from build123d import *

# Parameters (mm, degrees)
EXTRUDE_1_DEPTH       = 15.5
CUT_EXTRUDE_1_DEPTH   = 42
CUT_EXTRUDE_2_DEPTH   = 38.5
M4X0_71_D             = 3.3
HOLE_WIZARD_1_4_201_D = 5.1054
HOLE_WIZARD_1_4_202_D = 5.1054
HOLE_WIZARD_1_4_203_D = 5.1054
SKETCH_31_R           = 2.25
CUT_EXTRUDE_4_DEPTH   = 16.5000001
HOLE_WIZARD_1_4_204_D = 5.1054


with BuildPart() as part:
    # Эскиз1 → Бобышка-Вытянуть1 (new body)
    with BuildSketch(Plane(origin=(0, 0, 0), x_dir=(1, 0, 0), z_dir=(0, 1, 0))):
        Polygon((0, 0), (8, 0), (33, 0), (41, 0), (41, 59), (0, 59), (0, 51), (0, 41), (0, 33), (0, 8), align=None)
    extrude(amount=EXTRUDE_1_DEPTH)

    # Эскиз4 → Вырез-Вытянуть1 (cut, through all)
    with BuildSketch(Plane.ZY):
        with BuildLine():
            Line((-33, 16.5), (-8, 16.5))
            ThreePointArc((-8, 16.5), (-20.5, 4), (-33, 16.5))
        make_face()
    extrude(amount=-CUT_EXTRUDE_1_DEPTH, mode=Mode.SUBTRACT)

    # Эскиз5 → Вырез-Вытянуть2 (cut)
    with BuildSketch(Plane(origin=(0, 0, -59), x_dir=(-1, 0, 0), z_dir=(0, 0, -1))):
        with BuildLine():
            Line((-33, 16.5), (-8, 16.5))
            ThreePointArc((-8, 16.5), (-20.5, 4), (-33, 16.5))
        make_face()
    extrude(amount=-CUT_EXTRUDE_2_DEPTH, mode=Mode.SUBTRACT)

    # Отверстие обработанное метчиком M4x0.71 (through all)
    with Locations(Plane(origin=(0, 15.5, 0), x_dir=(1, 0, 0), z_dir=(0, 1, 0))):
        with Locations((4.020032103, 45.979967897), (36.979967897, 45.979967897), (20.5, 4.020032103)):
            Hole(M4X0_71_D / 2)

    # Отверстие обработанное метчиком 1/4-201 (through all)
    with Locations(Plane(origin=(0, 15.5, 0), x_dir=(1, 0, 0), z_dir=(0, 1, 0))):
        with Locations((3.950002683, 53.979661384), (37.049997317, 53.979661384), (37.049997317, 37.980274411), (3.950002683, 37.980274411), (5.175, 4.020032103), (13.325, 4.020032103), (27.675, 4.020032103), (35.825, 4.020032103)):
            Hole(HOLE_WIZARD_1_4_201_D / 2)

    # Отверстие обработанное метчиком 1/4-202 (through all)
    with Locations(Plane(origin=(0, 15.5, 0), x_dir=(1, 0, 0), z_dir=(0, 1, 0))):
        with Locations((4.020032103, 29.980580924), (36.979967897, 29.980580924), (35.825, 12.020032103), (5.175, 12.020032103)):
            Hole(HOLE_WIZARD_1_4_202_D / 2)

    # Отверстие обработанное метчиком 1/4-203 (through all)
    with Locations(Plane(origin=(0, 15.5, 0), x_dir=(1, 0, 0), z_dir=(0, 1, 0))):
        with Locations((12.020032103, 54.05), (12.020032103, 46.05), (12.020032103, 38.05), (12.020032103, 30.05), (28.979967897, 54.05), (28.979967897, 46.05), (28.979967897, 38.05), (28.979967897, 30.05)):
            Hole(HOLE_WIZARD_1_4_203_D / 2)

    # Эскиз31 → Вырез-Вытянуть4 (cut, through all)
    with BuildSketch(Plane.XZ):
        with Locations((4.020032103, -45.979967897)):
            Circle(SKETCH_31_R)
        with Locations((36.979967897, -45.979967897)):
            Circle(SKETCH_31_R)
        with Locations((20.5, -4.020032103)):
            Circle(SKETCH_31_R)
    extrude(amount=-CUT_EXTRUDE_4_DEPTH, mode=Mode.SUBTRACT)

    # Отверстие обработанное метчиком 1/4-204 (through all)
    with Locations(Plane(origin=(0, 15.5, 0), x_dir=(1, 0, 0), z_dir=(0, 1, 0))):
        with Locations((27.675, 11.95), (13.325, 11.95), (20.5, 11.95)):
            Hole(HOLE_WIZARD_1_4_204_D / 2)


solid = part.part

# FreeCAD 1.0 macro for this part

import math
import FreeCAD as App
import Part
import Sketcher

V = App.Vector

doc = App.newDocument("Part")
body = doc.addObject("PartDesign::Body", "Body")

# Sketch on XZ plane
sketch1 = body.newObject("Sketcher::SketchObject", "Sketch")
sketch1.AttachmentSupport = (doc.getObject("XZ_Plane"), [""])
sketch1.MapMode = "FlatFace"
sketch1.addGeometry([
    Part.LineSegment(V(0, 0, 0), V(41, 0, 0)),
    Part.LineSegment(V(41, 0, 0), V(41, -59, 0)),
    Part.LineSegment(V(41, -59, 0), V(0, -59, 0)),
    Part.LineSegment(V(0, -59, 0), V(0, 0, 0)),
], False)
sketch1.addConstraint([
    Sketcher.Constraint("Coincident", 0, 2, 1, 1),
    Sketcher.Constraint("Coincident", 1, 2, 2, 1),
    Sketcher.Constraint("Coincident", 2, 2, 3, 1),
    Sketcher.Constraint("Coincident", 3, 2, 0, 1),
    Sketcher.Constraint("Horizontal", 0),
    Sketcher.Constraint("Vertical", 1),
    Sketcher.Constraint("Horizontal", 2),
    Sketcher.Constraint("Vertical", 3),
    Sketcher.Constraint("Coincident", 3, 2, -1, 1),
    Sketcher.Constraint("DistanceX", 0, 1, 0, 2, 41.0),
    Sketcher.Constraint("DistanceY", 1, 2, 1, 1, 59.0),
])
pad1 = body.newObject("PartDesign::Pad", "Pad")
pad1.Profile = sketch1
pad1.Length = 15.5
pad1.Reversed = True

# Sketch on YZ plane
sketch2 = body.newObject("Sketcher::SketchObject", "Sketch001")
sketch2.AttachmentSupport = (doc.getObject("YZ_Plane"), [""])
sketch2.MapMode = "FlatFace"
sketch2.addGeometry([
    Part.LineSegment(V(16.5, -8, 0), V(16.5, -33, 0)),
    Part.ArcOfCircle(Part.Circle(V(16.5, -20.5, 0), V(0, 0, 1), 12.5), math.radians(90), math.radians(270)),
], False)
sketch2.addConstraint([
    Sketcher.Constraint("Coincident", 0, 1, 1, 1),
    Sketcher.Constraint("Coincident", 1, 2, 0, 2),
    Sketcher.Constraint("Vertical", 0),
    Sketcher.Constraint("Vertical", 1, 3, 0, 1),
    Sketcher.Constraint("Radius", 1, 12.5),
    Sketcher.Constraint("DistanceY", 0, 1, -1, 1, 8.0),
    Sketcher.Constraint("DistanceX", -1, 1, 1, 3, 16.5),
])
pocket1 = body.newObject("PartDesign::Pocket", "Pocket")
pocket1.Profile = sketch2
pocket1.Type = "ThroughAll"
pocket1.Reversed = True

# Sketch on XY plane
sketch3 = body.newObject("Sketcher::SketchObject", "Sketch002")
sketch3.AttachmentSupport = (doc.getObject("XY_Plane"), [""])
sketch3.MapMode = "FlatFace"
sketch3.AttachmentOffset = App.Placement(V(0, 0, -59), App.Rotation())
sketch3.addGeometry([
    Part.LineSegment(V(8, 16.5, 0), V(33, 16.5, 0)),
    Part.ArcOfCircle(Part.Circle(V(20.5, 16.5, 0), V(0, 0, 1), 12.5), math.radians(180), math.radians(360)),
], False)
sketch3.addConstraint([
    Sketcher.Constraint("Coincident", 0, 1, 1, 1),
    Sketcher.Constraint("Coincident", 1, 2, 0, 2),
    Sketcher.Constraint("Horizontal", 0),
    Sketcher.Constraint("Horizontal", 1, 3, 0, 1),
    Sketcher.Constraint("Radius", 1, 12.5),
    Sketcher.Constraint("DistanceX", -1, 1, 0, 1, 8.0),
    Sketcher.Constraint("DistanceY", -1, 1, 1, 3, 16.5),
])
pocket2 = body.newObject("PartDesign::Pocket", "Pocket001")
pocket2.Profile = sketch3
pocket2.Length = 38.5
pocket2.Reversed = True

# Sketch on XZ plane
sketch4 = body.newObject("Sketcher::SketchObject", "Sketch003")
sketch4.AttachmentSupport = (doc.getObject("XZ_Plane"), [""])
sketch4.MapMode = "FlatFace"
sketch4.AttachmentOffset = App.Placement(V(0, 0, -15.5), App.Rotation())
sketch4.addGeometry([
    Part.Circle(V(4.020032, -45.979968, 0), V(0, 0, 1), 1.65),
    Part.Circle(V(36.979968, -45.979968, 0), V(0, 0, 1), 1.65),
    Part.Circle(V(20.5, -4.020032, 0), V(0, 0, 1), 1.65),
], False)
sketch4.addConstraint([
    Sketcher.Constraint("Equal", 0, 1),
    Sketcher.Constraint("Equal", 1, 2),
    Sketcher.Constraint("Horizontal", 0, 3, 1, 3),
    Sketcher.Constraint("Diameter", 0, 3.3),
    Sketcher.Constraint("DistanceX", -1, 1, 2, 3, 20.5),
    Sketcher.Constraint("DistanceX", -1, 1, 0, 3, 4.020032),
    Sketcher.Constraint("DistanceY", 0, 3, -1, 1, 45.979968),
    Sketcher.Constraint("DistanceX", -1, 1, 1, 3, 36.979968),
    Sketcher.Constraint("DistanceY", 2, 3, -1, 1, 4.020032),
])
doc.recompute()
hole = body.newObject("PartDesign::Hole", "Hole")
hole.Profile = sketch4
hole.ThreadType = "None"
hole.Diameter = 3.3
hole.DepthType = "ThroughAll"
hole.Reversed = True

# Sketch on XZ plane
sketch5 = body.newObject("Sketcher::SketchObject", "Sketch004")
sketch5.AttachmentSupport = (doc.getObject("XZ_Plane"), [""])
sketch5.MapMode = "FlatFace"
sketch5.AttachmentOffset = App.Placement(V(0, 0, -15.5), App.Rotation())
sketch5.addGeometry([
    Part.Circle(V(3.950003, -53.979661, 0), V(0, 0, 1), 2.5527),  # 0
    Part.Circle(V(37.049997, -53.979661, 0), V(0, 0, 1), 2.5527),  # 1
    Part.Circle(V(37.049997, -37.980274, 0), V(0, 0, 1), 2.5527),  # 2
    Part.Circle(V(3.950003, -37.980274, 0), V(0, 0, 1), 2.5527),  # 3
    Part.Circle(V(5.175, -4.020032, 0), V(0, 0, 1), 2.5527),  # 4
    Part.Circle(V(13.325, -4.020032, 0), V(0, 0, 1), 2.5527),  # 5
    Part.Circle(V(27.675, -4.020032, 0), V(0, 0, 1), 2.5527),  # 6
    Part.Circle(V(35.825, -4.020032, 0), V(0, 0, 1), 2.5527),  # 7
], False)
sketch5.addConstraint([
    Sketcher.Constraint("Equal", 0, 1),
    Sketcher.Constraint("Equal", 1, 2),
    Sketcher.Constraint("Equal", 2, 3),
    Sketcher.Constraint("Equal", 3, 4),
    Sketcher.Constraint("Equal", 4, 5),
    Sketcher.Constraint("Equal", 5, 6),
    Sketcher.Constraint("Equal", 6, 7),
    Sketcher.Constraint("Horizontal", 0, 3, 1, 3),
    Sketcher.Constraint("Horizontal", 2, 3, 3, 3),
    Sketcher.Constraint("Horizontal", 4, 3, 5, 3),
    Sketcher.Constraint("Horizontal", 5, 3, 6, 3),
    Sketcher.Constraint("Horizontal", 6, 3, 7, 3),
    Sketcher.Constraint("Vertical", 1, 3, 2, 3),
    Sketcher.Constraint("Vertical", 0, 3, 3, 3),
    Sketcher.Constraint("Diameter", 0, 5.1054),
    Sketcher.Constraint("DistanceX", 4, 3, 6, 3, 22.5),
    Sketcher.Constraint("DistanceX", 5, 3, 7, 3, 22.5),
    Sketcher.Constraint("DistanceX", 4, 3, 5, 3, 8.15),
    Sketcher.Constraint("DistanceX", -1, 1, 4, 3, 5.175),
    Sketcher.Constraint("DistanceY", 0, 3, -1, 1, 53.979661),
    Sketcher.Constraint("DistanceY", 0, 3, 4, 3, 49.959629),
    Sketcher.Constraint("DistanceX", -1, 1, 0, 3, 3.950003),
    Sketcher.Constraint("DistanceX", -1, 1, 1, 3, 37.049997),
    Sketcher.Constraint("DistanceY", 2, 3, -1, 1, 37.980274),
])
doc.recompute()
hole2 = body.newObject("PartDesign::Hole", "Hole001")
hole2.Profile = sketch5
hole2.ThreadType = "None"
hole2.Diameter = 5.1054
hole2.DepthType = "ThroughAll"
hole2.Reversed = True

# Sketch on XZ plane
sketch6 = body.newObject("Sketcher::SketchObject", "Sketch005")
sketch6.AttachmentSupport = (doc.getObject("XZ_Plane"), [""])
sketch6.MapMode = "FlatFace"
sketch6.AttachmentOffset = App.Placement(V(0, 0, -15.5), App.Rotation())
sketch6.addGeometry([
    Part.Circle(V(4.020032, -29.980581, 0), V(0, 0, 1), 2.5527),
    Part.Circle(V(36.979968, -29.980581, 0), V(0, 0, 1), 2.5527),
    Part.Circle(V(35.825, -12.020032, 0), V(0, 0, 1), 2.5527),
    Part.Circle(V(5.175, -12.020032, 0), V(0, 0, 1), 2.5527),
], False)
sketch6.addConstraint([
    Sketcher.Constraint("Equal", 0, 1),
    Sketcher.Constraint("Equal", 1, 2),
    Sketcher.Constraint("Equal", 2, 3),
    Sketcher.Constraint("Horizontal", 0, 3, 1, 3),
    Sketcher.Constraint("Horizontal", 2, 3, 3, 3),
    Sketcher.Constraint("Diameter", 0, 5.1054),
    Sketcher.Constraint("DistanceX", 3, 3, 2, 3, 30.65),
    Sketcher.Constraint("DistanceX", -1, 1, 2, 3, 35.825),
    Sketcher.Constraint("DistanceY", 0, 3, -1, 1, 29.980581),
    Sketcher.Constraint("DistanceY", 1, 3, 2, 3, 17.960549),
    Sketcher.Constraint("DistanceX", -1, 1, 0, 3, 4.020032),
    Sketcher.Constraint("DistanceX", -1, 1, 1, 3, 36.979968),
])
doc.recompute()
hole3 = body.newObject("PartDesign::Hole", "Hole002")
hole3.Profile = sketch6
hole3.ThreadType = "None"
hole3.Diameter = 5.1054
hole3.DepthType = "ThroughAll"
hole3.Reversed = True

# Sketch on XZ plane
sketch7 = body.newObject("Sketcher::SketchObject", "Sketch006")
sketch7.AttachmentSupport = (doc.getObject("XZ_Plane"), [""])
sketch7.MapMode = "FlatFace"
sketch7.AttachmentOffset = App.Placement(V(0, 0, -15.5), App.Rotation())
sketch7.addGeometry([
    Part.Circle(V(12.020032, -54.05, 0), V(0, 0, 1), 2.5527),  # 0
    Part.Circle(V(12.020032, -46.05, 0), V(0, 0, 1), 2.5527),  # 1
    Part.Circle(V(12.020032, -38.05, 0), V(0, 0, 1), 2.5527),  # 2
    Part.Circle(V(12.020032, -30.05, 0), V(0, 0, 1), 2.5527),  # 3
    Part.Circle(V(28.979968, -54.05, 0), V(0, 0, 1), 2.5527),  # 4
    Part.Circle(V(28.979968, -46.05, 0), V(0, 0, 1), 2.5527),  # 5
    Part.Circle(V(28.979968, -38.05, 0), V(0, 0, 1), 2.5527),  # 6
    Part.Circle(V(28.979968, -30.05, 0), V(0, 0, 1), 2.5527),  # 7
], False)
sketch7.addConstraint([
    Sketcher.Constraint("Equal", 0, 1),
    Sketcher.Constraint("Equal", 1, 2),
    Sketcher.Constraint("Equal", 2, 3),
    Sketcher.Constraint("Equal", 3, 4),
    Sketcher.Constraint("Equal", 4, 5),
    Sketcher.Constraint("Equal", 5, 6),
    Sketcher.Constraint("Equal", 6, 7),
    Sketcher.Constraint("Horizontal", 0, 3, 4, 3),
    Sketcher.Constraint("Horizontal", 1, 3, 5, 3),
    Sketcher.Constraint("Horizontal", 2, 3, 6, 3),
    Sketcher.Constraint("Horizontal", 3, 3, 7, 3),
    Sketcher.Constraint("Vertical", 0, 3, 1, 3),
    Sketcher.Constraint("Vertical", 1, 3, 2, 3),
    Sketcher.Constraint("Vertical", 2, 3, 3, 3),
    Sketcher.Constraint("Vertical", 4, 3, 5, 3),
    Sketcher.Constraint("Vertical", 5, 3, 6, 3),
    Sketcher.Constraint("Vertical", 6, 3, 7, 3),
    Sketcher.Constraint("DistanceY", 0, 3, 1, 3, 8.0),
    Sketcher.Constraint("DistanceY", 1, 3, 2, 3, 8.0),
    Sketcher.Constraint("DistanceY", 2, 3, 3, 3, 8.0),
    Sketcher.Constraint("Diameter", 0, 5.1054),
    Sketcher.Constraint("DistanceY", 0, 3, -1, 1, 54.05),
    Sketcher.Constraint("DistanceX", -1, 1, 0, 3, 12.020032),
    Sketcher.Constraint("DistanceX", -1, 1, 4, 3, 28.979968),
])
doc.recompute()
hole4 = body.newObject("PartDesign::Hole", "Hole003")
hole4.Profile = sketch7
hole4.ThreadType = "None"
hole4.Diameter = 5.1054
hole4.DepthType = "ThroughAll"
hole4.Reversed = True

# Sketch on XZ plane
sketch8 = body.newObject("Sketcher::SketchObject", "Sketch007")
sketch8.AttachmentSupport = (doc.getObject("XZ_Plane"), [""])
sketch8.MapMode = "FlatFace"
sketch8.addGeometry([
    Part.Circle(V(4.020032, -45.979968, 0), V(0, 0, 1), 2.25),
    Part.Circle(V(36.979968, -45.979968, 0), V(0, 0, 1), 2.25),
    Part.Circle(V(20.5, -4.020032, 0), V(0, 0, 1), 2.25),
], False)
sketch8.addConstraint([
    Sketcher.Constraint("Equal", 0, 1),
    Sketcher.Constraint("Equal", 1, 2),
    Sketcher.Constraint("Horizontal", 0, 3, 1, 3),
    Sketcher.Constraint("Diameter", 0, 4.5),
    Sketcher.Constraint("DistanceX", -1, 1, 2, 3, 20.5),
    Sketcher.Constraint("DistanceX", -1, 1, 0, 3, 4.020032),
    Sketcher.Constraint("DistanceY", 0, 3, -1, 1, 45.979968),
    Sketcher.Constraint("DistanceX", -1, 1, 1, 3, 36.979968),
    Sketcher.Constraint("DistanceY", 2, 3, -1, 1, 4.020032),
])
pocket3 = body.newObject("PartDesign::Pocket", "Pocket002")
pocket3.Profile = sketch8
pocket3.Type = "ThroughAll"

# Sketch on XZ plane
sketch9 = body.newObject("Sketcher::SketchObject", "Sketch008")
sketch9.AttachmentSupport = (doc.getObject("XZ_Plane"), [""])
sketch9.MapMode = "FlatFace"
sketch9.AttachmentOffset = App.Placement(V(0, 0, -15.5), App.Rotation())
sketch9.addGeometry([
    Part.Circle(V(27.675, -11.95, 0), V(0, 0, 1), 2.5527),
    Part.Circle(V(13.325, -11.95, 0), V(0, 0, 1), 2.5527),
    Part.Circle(V(20.5, -11.95, 0), V(0, 0, 1), 2.5527),
], False)
sketch9.addConstraint([
    Sketcher.Constraint("Equal", 0, 1),
    Sketcher.Constraint("Equal", 1, 2),
    Sketcher.Constraint("Horizontal", 0, 3, 1, 3),
    Sketcher.Constraint("Horizontal", 1, 3, 2, 3),
    Sketcher.Constraint("Diameter", 0, 5.1054),
    Sketcher.Constraint("DistanceX", -1, 1, 2, 3, 20.5),
    Sketcher.Constraint("DistanceY", 0, 3, -1, 1, 11.95),
    Sketcher.Constraint("DistanceX", 1, 3, 0, 3, 14.35),
    Sketcher.Constraint("DistanceX", -1, 1, 0, 3, 27.675),
])
doc.recompute()
hole5 = body.newObject("PartDesign::Hole", "Hole004")
hole5.Profile = sketch9
hole5.ThreadType = "None"
hole5.Diameter = 5.1054
hole5.DepthType = "ThroughAll"
hole5.Reversed = True

doc.recompute()
